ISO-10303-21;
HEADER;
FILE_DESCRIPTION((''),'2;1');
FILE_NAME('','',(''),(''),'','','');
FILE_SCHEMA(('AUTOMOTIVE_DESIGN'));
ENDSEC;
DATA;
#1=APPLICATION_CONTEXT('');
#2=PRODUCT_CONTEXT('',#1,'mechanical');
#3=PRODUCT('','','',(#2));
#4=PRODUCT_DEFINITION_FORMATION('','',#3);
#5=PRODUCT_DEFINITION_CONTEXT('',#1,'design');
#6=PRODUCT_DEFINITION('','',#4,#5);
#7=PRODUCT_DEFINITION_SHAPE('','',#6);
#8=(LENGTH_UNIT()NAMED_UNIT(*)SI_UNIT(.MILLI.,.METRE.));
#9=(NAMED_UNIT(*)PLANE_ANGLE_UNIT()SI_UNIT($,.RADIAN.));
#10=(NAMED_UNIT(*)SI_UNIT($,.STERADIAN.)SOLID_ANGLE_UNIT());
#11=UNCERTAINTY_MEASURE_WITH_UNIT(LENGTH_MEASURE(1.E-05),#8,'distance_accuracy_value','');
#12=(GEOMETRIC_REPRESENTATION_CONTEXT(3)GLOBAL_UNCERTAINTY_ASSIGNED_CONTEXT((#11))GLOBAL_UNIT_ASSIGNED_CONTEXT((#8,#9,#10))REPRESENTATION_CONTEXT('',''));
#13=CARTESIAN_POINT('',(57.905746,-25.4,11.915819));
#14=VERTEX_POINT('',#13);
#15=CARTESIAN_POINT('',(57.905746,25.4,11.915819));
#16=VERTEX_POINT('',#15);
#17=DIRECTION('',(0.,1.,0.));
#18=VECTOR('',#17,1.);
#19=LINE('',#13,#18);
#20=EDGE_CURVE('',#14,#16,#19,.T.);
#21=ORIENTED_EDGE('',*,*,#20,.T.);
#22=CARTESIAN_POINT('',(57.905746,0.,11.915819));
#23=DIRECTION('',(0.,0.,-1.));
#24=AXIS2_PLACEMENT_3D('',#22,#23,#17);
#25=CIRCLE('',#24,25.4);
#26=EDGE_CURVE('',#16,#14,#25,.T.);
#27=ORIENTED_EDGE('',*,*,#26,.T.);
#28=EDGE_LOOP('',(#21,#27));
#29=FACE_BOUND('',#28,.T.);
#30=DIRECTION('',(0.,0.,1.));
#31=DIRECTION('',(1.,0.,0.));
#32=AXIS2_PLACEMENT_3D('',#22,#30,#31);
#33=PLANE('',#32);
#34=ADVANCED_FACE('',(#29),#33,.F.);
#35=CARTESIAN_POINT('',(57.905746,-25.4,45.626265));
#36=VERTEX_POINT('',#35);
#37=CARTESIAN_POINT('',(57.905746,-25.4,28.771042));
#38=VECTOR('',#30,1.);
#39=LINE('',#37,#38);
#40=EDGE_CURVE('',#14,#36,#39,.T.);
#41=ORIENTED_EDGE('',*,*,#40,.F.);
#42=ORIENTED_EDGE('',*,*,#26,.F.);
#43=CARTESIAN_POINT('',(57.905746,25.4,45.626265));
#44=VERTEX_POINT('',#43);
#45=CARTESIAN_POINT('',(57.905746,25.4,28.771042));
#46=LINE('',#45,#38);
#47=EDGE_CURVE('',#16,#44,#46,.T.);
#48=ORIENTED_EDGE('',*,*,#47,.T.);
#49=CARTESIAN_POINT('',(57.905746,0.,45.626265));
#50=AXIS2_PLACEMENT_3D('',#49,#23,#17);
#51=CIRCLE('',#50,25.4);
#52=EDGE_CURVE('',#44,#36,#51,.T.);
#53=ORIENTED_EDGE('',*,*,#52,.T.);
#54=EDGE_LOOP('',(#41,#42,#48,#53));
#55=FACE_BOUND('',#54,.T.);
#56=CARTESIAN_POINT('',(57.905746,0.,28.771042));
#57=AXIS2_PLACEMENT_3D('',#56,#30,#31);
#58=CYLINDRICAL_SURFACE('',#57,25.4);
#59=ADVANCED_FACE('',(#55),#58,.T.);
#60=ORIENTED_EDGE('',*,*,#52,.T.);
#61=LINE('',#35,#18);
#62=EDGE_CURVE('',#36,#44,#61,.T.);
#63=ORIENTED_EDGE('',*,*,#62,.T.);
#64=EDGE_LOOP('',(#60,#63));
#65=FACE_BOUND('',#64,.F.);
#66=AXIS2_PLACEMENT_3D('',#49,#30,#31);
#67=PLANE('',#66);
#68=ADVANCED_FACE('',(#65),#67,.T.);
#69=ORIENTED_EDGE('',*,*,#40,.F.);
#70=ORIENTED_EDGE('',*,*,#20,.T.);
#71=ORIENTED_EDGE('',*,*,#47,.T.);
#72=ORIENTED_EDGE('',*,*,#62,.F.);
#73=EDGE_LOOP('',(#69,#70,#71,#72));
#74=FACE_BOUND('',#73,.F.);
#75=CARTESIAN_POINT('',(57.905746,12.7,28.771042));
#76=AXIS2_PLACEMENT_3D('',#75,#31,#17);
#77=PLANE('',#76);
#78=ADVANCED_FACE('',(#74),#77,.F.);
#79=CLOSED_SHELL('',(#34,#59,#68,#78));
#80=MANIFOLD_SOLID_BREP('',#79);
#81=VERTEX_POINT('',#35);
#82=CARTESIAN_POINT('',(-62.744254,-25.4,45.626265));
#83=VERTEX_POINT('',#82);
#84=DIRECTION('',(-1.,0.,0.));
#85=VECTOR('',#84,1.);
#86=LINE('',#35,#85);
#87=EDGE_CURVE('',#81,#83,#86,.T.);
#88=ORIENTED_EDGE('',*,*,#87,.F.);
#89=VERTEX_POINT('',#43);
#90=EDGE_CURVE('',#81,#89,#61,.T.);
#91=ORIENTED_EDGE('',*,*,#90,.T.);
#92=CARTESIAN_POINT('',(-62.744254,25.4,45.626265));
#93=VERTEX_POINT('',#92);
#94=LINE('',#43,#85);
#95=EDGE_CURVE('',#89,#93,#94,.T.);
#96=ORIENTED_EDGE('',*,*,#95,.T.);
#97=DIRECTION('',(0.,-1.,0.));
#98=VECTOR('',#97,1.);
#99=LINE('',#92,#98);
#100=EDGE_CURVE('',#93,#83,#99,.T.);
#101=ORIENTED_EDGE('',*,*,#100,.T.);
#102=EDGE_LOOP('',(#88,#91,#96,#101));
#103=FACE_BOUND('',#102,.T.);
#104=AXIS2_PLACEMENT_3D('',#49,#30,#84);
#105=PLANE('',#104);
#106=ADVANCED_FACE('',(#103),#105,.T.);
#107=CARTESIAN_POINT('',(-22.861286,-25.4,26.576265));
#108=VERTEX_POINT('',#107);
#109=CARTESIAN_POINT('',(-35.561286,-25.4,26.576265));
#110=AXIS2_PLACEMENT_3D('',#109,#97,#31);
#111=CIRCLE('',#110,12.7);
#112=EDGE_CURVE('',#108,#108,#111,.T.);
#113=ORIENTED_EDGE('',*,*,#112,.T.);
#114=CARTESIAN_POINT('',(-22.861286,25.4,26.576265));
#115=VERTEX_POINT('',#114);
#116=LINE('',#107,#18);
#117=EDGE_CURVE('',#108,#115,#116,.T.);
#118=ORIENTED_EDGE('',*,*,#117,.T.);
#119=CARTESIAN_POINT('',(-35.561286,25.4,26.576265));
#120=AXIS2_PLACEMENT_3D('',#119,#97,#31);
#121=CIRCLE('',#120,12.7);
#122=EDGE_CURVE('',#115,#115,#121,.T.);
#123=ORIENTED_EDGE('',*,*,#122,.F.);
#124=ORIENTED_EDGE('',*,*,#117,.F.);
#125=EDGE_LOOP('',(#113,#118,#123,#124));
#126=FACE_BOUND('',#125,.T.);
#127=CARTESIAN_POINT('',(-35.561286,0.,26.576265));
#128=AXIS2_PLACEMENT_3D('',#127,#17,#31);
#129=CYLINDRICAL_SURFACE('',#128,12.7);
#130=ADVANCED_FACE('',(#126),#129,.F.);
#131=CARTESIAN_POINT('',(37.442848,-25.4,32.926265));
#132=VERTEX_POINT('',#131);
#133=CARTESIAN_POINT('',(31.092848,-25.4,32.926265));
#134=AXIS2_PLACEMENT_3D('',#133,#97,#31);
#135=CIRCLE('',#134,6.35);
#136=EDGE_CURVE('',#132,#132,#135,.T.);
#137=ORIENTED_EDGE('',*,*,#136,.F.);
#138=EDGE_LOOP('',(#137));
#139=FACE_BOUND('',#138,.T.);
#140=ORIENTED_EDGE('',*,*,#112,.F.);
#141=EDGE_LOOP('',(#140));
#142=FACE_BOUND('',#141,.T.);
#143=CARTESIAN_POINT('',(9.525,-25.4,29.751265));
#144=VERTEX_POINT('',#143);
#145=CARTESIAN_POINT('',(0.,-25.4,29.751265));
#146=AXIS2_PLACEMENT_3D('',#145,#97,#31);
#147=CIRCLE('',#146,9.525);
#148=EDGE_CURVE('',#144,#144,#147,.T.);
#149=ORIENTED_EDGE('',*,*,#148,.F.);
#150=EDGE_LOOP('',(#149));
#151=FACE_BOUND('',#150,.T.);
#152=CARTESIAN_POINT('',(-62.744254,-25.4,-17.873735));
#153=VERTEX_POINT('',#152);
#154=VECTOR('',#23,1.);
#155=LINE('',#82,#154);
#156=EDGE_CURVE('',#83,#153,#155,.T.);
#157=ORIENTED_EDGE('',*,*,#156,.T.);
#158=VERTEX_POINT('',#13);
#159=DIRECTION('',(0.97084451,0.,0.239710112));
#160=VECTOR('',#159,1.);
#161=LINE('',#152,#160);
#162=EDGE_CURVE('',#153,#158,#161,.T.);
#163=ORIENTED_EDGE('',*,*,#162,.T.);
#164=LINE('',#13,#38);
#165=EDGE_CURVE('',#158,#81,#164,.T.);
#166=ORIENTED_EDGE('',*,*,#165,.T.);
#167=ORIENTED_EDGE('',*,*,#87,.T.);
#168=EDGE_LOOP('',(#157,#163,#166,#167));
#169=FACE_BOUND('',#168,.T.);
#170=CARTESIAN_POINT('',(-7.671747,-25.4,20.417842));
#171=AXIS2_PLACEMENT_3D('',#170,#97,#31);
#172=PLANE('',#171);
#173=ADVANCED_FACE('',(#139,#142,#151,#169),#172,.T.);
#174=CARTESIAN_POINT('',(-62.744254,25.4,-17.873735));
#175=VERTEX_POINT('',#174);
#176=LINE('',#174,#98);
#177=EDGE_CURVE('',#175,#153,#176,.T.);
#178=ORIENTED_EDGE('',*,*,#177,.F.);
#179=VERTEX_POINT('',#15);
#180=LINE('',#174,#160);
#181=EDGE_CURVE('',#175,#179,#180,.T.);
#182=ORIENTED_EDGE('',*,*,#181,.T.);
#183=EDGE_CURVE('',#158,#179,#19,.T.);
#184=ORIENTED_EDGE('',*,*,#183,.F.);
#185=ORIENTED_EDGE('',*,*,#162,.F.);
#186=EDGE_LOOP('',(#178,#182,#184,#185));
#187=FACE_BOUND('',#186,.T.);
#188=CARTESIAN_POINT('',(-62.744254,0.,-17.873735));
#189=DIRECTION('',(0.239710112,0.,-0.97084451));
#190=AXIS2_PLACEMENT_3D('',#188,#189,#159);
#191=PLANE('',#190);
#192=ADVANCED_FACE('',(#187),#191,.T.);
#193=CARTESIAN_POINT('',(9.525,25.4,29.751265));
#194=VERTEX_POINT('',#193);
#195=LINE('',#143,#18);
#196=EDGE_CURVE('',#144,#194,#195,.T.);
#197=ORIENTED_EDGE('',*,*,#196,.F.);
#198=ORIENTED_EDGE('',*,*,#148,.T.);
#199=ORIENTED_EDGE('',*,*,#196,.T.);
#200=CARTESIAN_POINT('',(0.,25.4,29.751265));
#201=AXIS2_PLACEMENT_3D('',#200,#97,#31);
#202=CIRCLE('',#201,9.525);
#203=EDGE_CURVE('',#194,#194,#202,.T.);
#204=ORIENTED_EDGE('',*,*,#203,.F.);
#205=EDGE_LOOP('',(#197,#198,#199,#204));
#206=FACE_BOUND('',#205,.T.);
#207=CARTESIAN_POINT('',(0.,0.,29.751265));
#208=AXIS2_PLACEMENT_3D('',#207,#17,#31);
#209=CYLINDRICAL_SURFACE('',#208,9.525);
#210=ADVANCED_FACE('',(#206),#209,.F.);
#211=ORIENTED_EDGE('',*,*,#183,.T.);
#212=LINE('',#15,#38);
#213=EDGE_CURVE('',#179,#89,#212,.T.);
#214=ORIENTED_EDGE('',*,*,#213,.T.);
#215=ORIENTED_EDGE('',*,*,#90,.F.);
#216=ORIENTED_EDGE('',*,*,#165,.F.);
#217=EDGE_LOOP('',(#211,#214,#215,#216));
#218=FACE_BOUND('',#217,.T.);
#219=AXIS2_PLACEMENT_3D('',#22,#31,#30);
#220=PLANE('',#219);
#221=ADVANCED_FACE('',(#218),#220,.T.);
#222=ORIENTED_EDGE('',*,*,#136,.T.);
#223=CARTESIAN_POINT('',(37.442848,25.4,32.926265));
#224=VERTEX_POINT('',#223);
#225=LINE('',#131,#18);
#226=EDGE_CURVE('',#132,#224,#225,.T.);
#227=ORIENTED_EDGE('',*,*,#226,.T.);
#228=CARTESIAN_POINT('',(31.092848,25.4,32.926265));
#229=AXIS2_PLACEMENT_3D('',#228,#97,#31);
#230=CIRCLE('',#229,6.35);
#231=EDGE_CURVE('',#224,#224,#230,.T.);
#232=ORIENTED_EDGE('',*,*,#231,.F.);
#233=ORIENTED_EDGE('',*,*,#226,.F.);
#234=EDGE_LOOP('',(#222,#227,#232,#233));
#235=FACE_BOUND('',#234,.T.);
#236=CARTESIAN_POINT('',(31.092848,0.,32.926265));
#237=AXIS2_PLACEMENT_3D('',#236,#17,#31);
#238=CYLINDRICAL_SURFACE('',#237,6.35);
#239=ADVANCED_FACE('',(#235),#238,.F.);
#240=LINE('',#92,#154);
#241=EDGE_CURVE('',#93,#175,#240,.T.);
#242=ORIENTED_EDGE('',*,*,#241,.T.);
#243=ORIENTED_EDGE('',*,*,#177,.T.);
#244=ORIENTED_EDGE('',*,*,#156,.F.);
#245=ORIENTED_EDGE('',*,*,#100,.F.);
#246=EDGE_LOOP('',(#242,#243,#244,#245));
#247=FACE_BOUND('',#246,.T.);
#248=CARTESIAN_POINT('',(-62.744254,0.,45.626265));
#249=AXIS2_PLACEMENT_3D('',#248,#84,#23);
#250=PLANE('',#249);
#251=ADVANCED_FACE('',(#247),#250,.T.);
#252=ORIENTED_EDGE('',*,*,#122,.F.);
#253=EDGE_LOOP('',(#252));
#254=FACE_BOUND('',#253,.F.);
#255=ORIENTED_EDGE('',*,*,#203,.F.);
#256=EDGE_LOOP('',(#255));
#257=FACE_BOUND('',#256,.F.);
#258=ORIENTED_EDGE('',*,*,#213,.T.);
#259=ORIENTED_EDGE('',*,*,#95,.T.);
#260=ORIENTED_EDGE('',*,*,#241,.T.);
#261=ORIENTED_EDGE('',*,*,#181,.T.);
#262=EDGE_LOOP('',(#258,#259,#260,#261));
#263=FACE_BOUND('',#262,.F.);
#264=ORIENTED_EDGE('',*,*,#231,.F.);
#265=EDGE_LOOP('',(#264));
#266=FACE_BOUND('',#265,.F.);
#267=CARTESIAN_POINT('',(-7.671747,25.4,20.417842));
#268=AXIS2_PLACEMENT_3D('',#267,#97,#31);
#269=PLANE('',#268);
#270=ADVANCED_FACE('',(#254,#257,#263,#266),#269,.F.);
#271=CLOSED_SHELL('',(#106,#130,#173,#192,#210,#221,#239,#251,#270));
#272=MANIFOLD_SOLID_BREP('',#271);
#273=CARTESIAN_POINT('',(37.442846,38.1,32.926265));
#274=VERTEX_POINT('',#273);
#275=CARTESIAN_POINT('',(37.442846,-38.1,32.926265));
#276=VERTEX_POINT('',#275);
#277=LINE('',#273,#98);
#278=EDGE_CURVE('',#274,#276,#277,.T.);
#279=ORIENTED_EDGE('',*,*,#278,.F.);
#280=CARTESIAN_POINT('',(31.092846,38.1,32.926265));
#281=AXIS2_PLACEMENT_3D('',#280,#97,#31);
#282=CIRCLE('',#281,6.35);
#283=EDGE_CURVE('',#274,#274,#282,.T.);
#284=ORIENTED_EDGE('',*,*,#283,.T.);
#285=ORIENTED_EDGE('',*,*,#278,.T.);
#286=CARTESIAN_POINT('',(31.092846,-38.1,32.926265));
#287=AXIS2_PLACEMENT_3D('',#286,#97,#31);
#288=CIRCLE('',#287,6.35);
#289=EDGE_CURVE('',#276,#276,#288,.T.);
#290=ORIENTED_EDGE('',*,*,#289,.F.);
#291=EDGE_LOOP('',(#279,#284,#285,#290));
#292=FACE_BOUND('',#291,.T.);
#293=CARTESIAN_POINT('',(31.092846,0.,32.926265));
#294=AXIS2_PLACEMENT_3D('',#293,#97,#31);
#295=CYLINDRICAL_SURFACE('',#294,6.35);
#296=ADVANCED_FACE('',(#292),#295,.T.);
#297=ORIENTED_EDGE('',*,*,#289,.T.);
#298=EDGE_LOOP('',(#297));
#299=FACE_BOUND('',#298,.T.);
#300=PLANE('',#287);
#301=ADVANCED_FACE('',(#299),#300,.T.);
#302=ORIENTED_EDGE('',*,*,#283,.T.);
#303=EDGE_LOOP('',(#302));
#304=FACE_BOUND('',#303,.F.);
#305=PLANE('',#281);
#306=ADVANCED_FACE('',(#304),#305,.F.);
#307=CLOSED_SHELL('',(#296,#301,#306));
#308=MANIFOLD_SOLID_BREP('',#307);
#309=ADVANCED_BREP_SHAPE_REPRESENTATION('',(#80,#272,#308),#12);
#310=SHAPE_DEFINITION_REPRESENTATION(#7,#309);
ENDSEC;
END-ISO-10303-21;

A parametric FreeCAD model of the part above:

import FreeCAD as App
import Part
import Sketcher

V = App.Vector
Q = App.Units.Quantity

doc = App.newDocument("Part")
body = doc.addObject("PartDesign::Body", "Body")

# Sketch on XZ plane
sketch1 = body.newObject("Sketcher::SketchObject", "Sketch")
sketch1.AttachmentSupport = (doc.getObject("XZ_Plane"), [""])
sketch1.MapMode = "FlatFace"
sketch1.addGeometry([
    Part.LineSegment(V(57.905746, 45.626265, 0), V(-62.744254, 45.626265, 0)),  # 0
    Part.LineSegment(V(-62.744254, 45.626265, 0), V(-62.744254, -17.873735, 0)),  # 1
    Part.LineSegment(V(-62.744254, -17.873735, 0), V(57.905746, 11.915819, 0)),  # 2
    Part.LineSegment(V(57.905746, 11.915819, 0), V(57.905746, 45.626265, 0)),  # 3
    Part.Circle(V(-35.561286, 26.576265, 0), V(0, 0, 1), 12.7),  # 4
    Part.Circle(V(0, 29.751265, 0), V(0, 0, 1), 9.525),  # 5
    Part.Circle(V(31.092848, 32.926265, 0), V(0, 0, 1), 6.35),  # 6
], False)
sketch1.addConstraint([
    Sketcher.Constraint("Coincident", 0, 2, 1, 1),
    Sketcher.Constraint("Coincident", 1, 2, 2, 1),
    Sketcher.Constraint("Coincident", 2, 2, 3, 1),
    Sketcher.Constraint("Coincident", 3, 2, 0, 1),
    Sketcher.Constraint("Horizontal", 0),
    Sketcher.Constraint("Vertical", 1),
    Sketcher.Constraint("Vertical", 3),
    Sketcher.Constraint("PointOnObject", 5, 3, -2),
    Sketcher.Constraint("Diameter", 4, Q("1 in")),
    Sketcher.Constraint("Diameter", 6, Q("0.5 in")),
    Sketcher.Constraint("Diameter", 5, Q("0.75 in")),
    Sketcher.Constraint("DistanceY", 1, 2, 1, 1, Q("2.5 in")),
    Sketcher.Constraint("DistanceY", 1, 2, 6, 3, Q("2 in")),
    Sketcher.Constraint("DistanceX", 0, 2, 0, 1, Q("4.75 in")),
    Sketcher.Constraint("DistanceY", 4, 3, 6, 3, Q("0.25 in")),
    Sketcher.Constraint("DistanceY", 4, 3, 5, 3, Q("0.125 in")),
    Sketcher.Constraint("DistanceX", 0, 2, 6, 3, 93.837102),
    Sketcher.Constraint("DistanceY", 3, 1, 3, 2, 33.710446),
    Sketcher.Constraint("DistanceX", -1, 1, 6, 3, 31.092848),
    Sketcher.Constraint("DistanceY", -1, 1, 2, 2, 11.915819),
    Sketcher.Constraint("DistanceX", 4, 3, -1, 1, 35.561286),
])
pad1 = body.newObject("PartDesign::Pad", "Pad")
pad1.Profile = sketch1
pad1.Length = Q("2 in")
pad1.Midplane = True
body2 = doc.addObject("PartDesign::Body", "Body001")

# Sketch on XZ plane
sketch2 = body2.newObject("Sketcher::SketchObject", "Sketch001")
sketch2.AttachmentSupport = (doc.getObject("XZ_Plane001"), [""])
sketch2.MapMode = "FlatFace"
sketch2.addGeometry(Part.Circle(V(31.092846, 32.926265, 0), V(0, 0, 1), 6.35), False)
sketch2.addConstraint([
    Sketcher.Constraint("Diameter", 0, Q("0.5 in")),
    Sketcher.Constraint("DistanceX", -1, 1, 0, 3, 31.092846),
    Sketcher.Constraint("DistanceY", -1, 1, 0, 3, 32.926265),
])
pad2 = body2.newObject("PartDesign::Pad", "Pad001")
pad2.Profile = sketch2
pad2.Length = Q("3 in")
pad2.Midplane = True
body3 = doc.addObject("PartDesign::Body", "Body002")

# Sketch on XZ plane
sketch3 = body3.newObject("Sketcher::SketchObject", "Sketch002")
sketch3.AttachmentSupport = (doc.getObject("XZ_Plane002"), [""])
sketch3.MapMode = "FlatFace"
sketch3.addGeometry([
    Part.LineSegment(V(57.905746, 45.626265, 0), V(57.905746, 11.915819, 0)),
    Part.LineSegment(V(57.905746, 11.915819, 0), V(83.305746, 11.915819, 0)),
    Part.LineSegment(V(83.305746, 11.915819, 0), V(83.305746, 45.626265, 0)),
    Part.LineSegment(V(83.305746, 45.626265, 0), V(57.905746, 45.626265, 0)),
], False)
sketch3.addGeometry(Part.LineSegment(V(57.905746, 45.626265, 0), V(57.905746, 11.915819, 0)), True)  # axis
sketch3.addConstraint([
    Sketcher.Constraint("Coincident", 0, 2, 1, 1),
    Sketcher.Constraint("Coincident", 1, 2, 2, 1),
    Sketcher.Constraint("Coincident", 2, 2, 3, 1),
    Sketcher.Constraint("Coincident", 3, 2, 0, 1),
    Sketcher.Constraint("Vertical", 0),
    Sketcher.Constraint("Horizontal", 1),
    Sketcher.Constraint("Vertical", 2),
    Sketcher.Constraint("Horizontal", 3),
    Sketcher.Constraint("Vertical", 4),
    Sketcher.Constraint("Coincident", 4, 1, 3, 2),
    Sketcher.Constraint("Horizontal", 1, 2, 4, 2),
    Sketcher.Constraint("DistanceX", 1, 1, 1, 2, Q("1 in")),
    Sketcher.Constraint("DistanceY", 0, 2, 0, 1, 33.710446),
    Sketcher.Constraint("DistanceY", -1, 1, 0, 2, 11.915819),
    Sketcher.Constraint("DistanceX", -1, 1, 0, 2, 57.905746),
])
revolution = body3.newObject("PartDesign::Revolution", "Revolution")
revolution.Profile = sketch3
revolution.ReferenceAxis = (sketch3, ["Axis0"])
revolution.Angle = 90

# Sketch on XZ plane
sketch4 = body3.newObject("Sketcher::SketchObject", "Sketch003")
sketch4.AttachmentSupport = (doc.getObject("XZ_Plane002"), [""])
sketch4.MapMode = "FlatFace"
sketch4.addGeometry([
    Part.LineSegment(V(57.905746, 45.626265, 0), V(57.905746, 11.915819, 0)),
    Part.LineSegment(V(57.905746, 11.915819, 0), V(83.305746, 11.915819, 0)),
    Part.LineSegment(V(83.305746, 11.915819, 0), V(83.305746, 45.626265, 0)),
    Part.LineSegment(V(83.305746, 45.626265, 0), V(57.905746, 45.626265, 0)),
], False)
sketch4.addGeometry(Part.LineSegment(V(57.905746, 11.915819, 0), V(57.905746, 45.626265, 0)), True)  # axis
sketch4.addConstraint([
    Sketcher.Constraint("Coincident", 0, 2, 1, 1),
    Sketcher.Constraint("Coincident", 1, 2, 2, 1),
    Sketcher.Constraint("Coincident", 2, 2, 3, 1),
    Sketcher.Constraint("Coincident", 3, 2, 0, 1),
    Sketcher.Constraint("Vertical", 0),
    Sketcher.Constraint("Horizontal", 1),
    Sketcher.Constraint("Vertical", 2),
    Sketcher.Constraint("Horizontal", 3),
    Sketcher.Constraint("Vertical", 4),
    Sketcher.Constraint("Coincident", 4, 1, 0, 2),
    Sketcher.Constraint("Horizontal", 2, 2, 4, 2),
    Sketcher.Constraint("DistanceX", 1, 1, 1, 2, Q("1 in")),
    Sketcher.Constraint("DistanceY", 0, 2, 0, 1, 33.710446),
    Sketcher.Constraint("DistanceY", -1, 1, 0, 2, 11.915819),
    Sketcher.Constraint("DistanceX", -1, 1, 0, 2, 57.905746),
])
revolution2 = body3.newObject("PartDesign::Revolution", "Revolution001")
revolution2.Profile = sketch4
revolution2.ReferenceAxis = (sketch4, ["Axis0"])
revolution2.Angle = 90

doc.recompute()
